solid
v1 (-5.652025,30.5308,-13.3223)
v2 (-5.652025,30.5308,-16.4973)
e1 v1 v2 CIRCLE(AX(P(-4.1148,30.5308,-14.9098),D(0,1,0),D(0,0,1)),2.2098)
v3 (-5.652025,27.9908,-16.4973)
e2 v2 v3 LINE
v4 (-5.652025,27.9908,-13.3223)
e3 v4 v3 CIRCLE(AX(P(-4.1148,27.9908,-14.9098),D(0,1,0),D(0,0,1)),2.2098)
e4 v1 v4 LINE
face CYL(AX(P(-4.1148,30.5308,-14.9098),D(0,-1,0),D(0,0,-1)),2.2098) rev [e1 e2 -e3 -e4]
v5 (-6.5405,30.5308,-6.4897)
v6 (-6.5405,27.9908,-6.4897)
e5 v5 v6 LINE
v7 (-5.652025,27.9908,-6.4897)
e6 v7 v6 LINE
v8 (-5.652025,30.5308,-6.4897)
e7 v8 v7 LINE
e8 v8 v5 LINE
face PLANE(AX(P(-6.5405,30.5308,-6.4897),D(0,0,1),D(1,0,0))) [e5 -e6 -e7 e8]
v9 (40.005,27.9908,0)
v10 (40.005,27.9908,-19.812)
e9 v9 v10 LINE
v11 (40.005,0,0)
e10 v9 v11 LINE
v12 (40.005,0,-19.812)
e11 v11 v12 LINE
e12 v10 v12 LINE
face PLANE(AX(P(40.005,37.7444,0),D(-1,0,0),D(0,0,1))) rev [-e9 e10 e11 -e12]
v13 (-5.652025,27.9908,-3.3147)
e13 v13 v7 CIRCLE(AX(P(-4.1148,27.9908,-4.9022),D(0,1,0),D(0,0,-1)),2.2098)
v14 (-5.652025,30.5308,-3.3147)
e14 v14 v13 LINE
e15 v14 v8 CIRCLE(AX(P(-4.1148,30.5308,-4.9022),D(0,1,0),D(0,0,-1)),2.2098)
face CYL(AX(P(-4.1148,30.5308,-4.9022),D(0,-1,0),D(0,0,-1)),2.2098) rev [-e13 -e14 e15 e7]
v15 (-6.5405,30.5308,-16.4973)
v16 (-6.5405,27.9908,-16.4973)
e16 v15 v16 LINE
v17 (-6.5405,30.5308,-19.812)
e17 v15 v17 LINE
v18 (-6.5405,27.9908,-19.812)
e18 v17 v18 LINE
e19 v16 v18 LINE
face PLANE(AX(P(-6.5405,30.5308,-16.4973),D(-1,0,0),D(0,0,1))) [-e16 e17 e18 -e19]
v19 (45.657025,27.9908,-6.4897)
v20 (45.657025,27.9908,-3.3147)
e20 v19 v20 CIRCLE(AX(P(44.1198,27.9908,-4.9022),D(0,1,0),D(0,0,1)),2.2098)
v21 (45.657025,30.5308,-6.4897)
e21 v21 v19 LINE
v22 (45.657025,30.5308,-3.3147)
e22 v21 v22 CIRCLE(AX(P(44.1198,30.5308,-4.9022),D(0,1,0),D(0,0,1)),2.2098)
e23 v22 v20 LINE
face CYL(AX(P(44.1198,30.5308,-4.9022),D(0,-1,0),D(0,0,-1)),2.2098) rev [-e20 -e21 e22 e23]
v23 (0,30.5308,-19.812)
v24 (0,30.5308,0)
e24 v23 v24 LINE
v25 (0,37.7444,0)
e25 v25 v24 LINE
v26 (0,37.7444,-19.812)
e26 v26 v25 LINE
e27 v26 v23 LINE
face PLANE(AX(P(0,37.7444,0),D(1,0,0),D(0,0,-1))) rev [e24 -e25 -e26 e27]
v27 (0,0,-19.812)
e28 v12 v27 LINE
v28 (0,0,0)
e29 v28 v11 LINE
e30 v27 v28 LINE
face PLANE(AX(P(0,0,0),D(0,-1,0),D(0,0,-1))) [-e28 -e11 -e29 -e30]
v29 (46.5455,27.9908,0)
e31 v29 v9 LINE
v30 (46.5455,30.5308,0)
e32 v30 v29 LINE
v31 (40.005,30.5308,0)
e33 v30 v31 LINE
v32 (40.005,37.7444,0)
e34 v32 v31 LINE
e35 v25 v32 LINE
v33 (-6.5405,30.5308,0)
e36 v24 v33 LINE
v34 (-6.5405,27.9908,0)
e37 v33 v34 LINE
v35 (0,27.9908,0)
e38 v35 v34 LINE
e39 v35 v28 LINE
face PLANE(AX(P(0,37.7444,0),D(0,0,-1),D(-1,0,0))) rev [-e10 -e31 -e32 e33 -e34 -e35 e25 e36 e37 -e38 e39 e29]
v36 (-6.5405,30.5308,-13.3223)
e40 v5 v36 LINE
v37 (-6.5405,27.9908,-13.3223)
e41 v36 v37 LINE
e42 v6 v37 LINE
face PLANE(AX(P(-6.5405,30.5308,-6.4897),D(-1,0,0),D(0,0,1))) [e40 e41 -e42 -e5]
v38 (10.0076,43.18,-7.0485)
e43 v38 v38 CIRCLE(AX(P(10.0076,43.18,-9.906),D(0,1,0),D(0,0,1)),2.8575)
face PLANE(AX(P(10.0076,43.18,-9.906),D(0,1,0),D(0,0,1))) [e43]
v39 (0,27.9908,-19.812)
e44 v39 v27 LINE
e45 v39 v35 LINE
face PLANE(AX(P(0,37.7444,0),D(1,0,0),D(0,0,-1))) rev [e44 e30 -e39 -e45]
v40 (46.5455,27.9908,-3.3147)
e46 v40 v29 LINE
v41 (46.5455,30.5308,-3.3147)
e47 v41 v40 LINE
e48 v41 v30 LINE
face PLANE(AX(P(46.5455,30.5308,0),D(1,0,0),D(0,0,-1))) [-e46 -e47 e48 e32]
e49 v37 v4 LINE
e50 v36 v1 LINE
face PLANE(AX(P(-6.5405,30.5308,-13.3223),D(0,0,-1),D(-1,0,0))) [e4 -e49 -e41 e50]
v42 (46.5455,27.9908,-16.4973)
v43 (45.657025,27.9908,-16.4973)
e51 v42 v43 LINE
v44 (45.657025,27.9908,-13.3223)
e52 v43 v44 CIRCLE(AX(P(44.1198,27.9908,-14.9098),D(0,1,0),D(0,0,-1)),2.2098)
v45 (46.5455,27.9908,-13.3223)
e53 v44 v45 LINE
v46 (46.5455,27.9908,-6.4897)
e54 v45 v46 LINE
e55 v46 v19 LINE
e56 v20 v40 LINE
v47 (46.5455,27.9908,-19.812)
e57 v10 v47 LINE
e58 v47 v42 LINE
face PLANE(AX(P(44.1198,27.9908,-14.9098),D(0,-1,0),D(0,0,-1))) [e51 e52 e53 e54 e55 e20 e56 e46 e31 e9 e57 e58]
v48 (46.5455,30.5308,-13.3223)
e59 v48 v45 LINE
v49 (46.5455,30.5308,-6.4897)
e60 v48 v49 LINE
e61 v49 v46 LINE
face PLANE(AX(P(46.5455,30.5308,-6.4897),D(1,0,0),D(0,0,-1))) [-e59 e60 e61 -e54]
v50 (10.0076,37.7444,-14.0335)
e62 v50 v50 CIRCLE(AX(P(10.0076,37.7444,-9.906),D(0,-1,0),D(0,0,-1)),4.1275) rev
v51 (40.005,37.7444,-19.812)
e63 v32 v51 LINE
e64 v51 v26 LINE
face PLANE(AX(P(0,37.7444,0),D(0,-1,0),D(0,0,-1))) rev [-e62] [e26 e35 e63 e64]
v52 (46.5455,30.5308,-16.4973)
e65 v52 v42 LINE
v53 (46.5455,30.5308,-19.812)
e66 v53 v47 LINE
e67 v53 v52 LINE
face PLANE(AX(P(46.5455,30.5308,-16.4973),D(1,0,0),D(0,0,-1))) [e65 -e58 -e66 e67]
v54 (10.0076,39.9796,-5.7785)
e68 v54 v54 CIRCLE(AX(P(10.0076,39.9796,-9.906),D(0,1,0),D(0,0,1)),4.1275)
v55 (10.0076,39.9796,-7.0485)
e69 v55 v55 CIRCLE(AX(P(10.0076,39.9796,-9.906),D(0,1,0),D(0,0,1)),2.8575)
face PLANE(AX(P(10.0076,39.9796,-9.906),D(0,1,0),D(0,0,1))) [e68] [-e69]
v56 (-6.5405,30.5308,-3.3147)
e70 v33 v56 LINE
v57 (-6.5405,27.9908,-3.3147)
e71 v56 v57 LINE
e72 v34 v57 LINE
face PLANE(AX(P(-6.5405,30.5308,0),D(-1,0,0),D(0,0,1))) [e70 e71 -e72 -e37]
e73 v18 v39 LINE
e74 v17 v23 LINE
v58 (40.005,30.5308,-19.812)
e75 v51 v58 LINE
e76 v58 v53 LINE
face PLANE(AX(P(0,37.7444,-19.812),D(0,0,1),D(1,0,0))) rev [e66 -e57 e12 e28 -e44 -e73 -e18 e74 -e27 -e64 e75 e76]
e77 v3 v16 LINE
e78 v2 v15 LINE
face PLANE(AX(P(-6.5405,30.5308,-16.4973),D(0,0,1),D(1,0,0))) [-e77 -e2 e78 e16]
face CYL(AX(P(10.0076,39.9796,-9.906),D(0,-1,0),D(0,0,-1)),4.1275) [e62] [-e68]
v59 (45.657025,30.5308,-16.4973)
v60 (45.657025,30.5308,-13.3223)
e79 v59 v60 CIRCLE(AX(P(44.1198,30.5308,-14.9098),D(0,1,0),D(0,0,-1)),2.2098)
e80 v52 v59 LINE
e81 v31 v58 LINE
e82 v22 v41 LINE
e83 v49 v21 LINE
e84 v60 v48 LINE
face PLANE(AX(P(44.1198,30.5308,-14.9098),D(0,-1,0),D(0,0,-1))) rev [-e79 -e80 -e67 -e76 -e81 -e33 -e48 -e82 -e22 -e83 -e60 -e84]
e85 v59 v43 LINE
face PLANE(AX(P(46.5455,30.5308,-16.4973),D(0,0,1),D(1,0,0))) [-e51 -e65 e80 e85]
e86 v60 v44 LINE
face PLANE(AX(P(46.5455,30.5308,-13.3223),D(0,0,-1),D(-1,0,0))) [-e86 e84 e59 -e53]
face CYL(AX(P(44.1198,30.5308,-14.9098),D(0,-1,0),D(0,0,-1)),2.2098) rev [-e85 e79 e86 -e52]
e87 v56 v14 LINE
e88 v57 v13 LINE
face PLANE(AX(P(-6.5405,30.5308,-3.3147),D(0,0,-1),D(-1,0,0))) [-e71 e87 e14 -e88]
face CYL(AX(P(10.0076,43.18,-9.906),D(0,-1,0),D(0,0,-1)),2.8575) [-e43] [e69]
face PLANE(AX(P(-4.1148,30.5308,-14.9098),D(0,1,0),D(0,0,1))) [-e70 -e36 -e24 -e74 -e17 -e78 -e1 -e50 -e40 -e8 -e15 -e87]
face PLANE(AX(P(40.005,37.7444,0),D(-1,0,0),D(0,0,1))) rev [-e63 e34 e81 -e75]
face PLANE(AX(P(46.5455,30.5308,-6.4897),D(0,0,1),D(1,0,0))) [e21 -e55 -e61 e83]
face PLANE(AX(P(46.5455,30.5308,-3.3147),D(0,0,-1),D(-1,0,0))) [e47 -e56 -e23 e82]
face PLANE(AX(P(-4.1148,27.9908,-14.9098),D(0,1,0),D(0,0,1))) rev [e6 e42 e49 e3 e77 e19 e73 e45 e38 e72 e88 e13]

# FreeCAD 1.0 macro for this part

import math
import FreeCAD as App
import Part
import Sketcher
from FreeCAD import Vector
Q = App.Units.Quantity


def add_polygon(sketch, points):
    """Adds a closed chain of lines whose ends are joined by coincident constraints."""
    first, n = sketch.GeometryCount, len(points)
    for a, b in zip(points, points[1:] + points[:1]):
        sketch.addGeometry(Part.LineSegment(App.Vector(*a, 0), App.Vector(*b, 0)), False)
    for i in range(n):
        sketch.addConstraint(Sketcher.Constraint("Coincident", first + i, 2, first + (i + 1) % n, 1))

doc = App.newDocument("Part")
body = doc.addObject("PartDesign::Body", "Body")

# Sketch on XZ plane
sketch1 = doc.addObject("Sketcher::SketchObject", "Sketch")
body.addObject(sketch1)
sketch1.AttachmentSupport = (doc.XZ_Plane, [""])
sketch1.MapMode = "FlatFace"
add_polygon(sketch1, [(0, -19.812), (0, 0), (40.005, 0), (40.005, -19.812)])  # lines 0-3
sketch1.addConstraint([
    Sketcher.Constraint("Vertical", 0),
    Sketcher.Constraint("Horizontal", 1),
    Sketcher.Constraint("Vertical", 2),
    Sketcher.Constraint("Horizontal", 3),
    Sketcher.Constraint("Coincident", 0, 2, -1, 1),
    Sketcher.Constraint("DistanceY", 0, 1, 0, 2, Q("0.78 in")),
    Sketcher.Constraint("DistanceX", 1, 1, 1, 2, Q("1.575 in")),
])
pad1 = doc.addObject("PartDesign::Pad", "Pad")
body.addObject(pad1)
pad1.Profile = sketch1
pad1.Length = Q("1.486 in")
pad1.Reversed = True

# Sketch on XZ plane
sketch2 = doc.addObject("Sketcher::SketchObject", "Sketch001")
body.addObject(sketch2)
sketch2.AttachmentSupport = (doc.XZ_Plane, [""])
sketch2.MapMode = "FlatFace"
sketch2.AttachmentOffset = App.Placement(Vector(0, 0, -1.486 * 25.4), App.Rotation())
sketch2.addGeometry(Part.Circle(Vector(10.0076, -9.906, 0), Vector(0, 0, 1), 4.1275), False)
sketch2.addConstraint([
    Sketcher.Constraint("Diameter", 0, Q("0.325 in")),
    Sketcher.Constraint("DistanceY", 0, 3, -1, 1, Q("0.39 in")),
    Sketcher.Constraint("DistanceX", -1, 1, 0, 3, Q("0.394 in")),
])
pad2 = doc.addObject("PartDesign::Pad", "Pad001")
body.addObject(pad2)
pad2.Profile = sketch2
pad2.Length = Q("0.088 in")
pad2.Reversed = True

# Sketch on XZ plane
sketch3 = doc.addObject("Sketcher::SketchObject", "Sketch002")
body.addObject(sketch3)
sketch3.AttachmentSupport = (doc.XZ_Plane, [""])
sketch3.MapMode = "FlatFace"
sketch3.AttachmentOffset = App.Placement(Vector(0, 0, -1.574 * 25.4), App.Rotation())
sketch3.addGeometry(Part.Circle(Vector(10.0076, -9.906, 0), Vector(0, 0, 1), 2.8575), False)
sketch3.addConstraint([
    Sketcher.Constraint("Diameter", 0, Q("0.225 in")),
    Sketcher.Constraint("DistanceY", 0, 3, -1, 1, Q("0.39 in")),
    Sketcher.Constraint("DistanceX", -1, 1, 0, 3, Q("0.394 in")),
])
pad3 = doc.addObject("PartDesign::Pad", "Pad002")
body.addObject(pad3)
pad3.Profile = sketch3
pad3.Length = Q("0.126 in")
pad3.Reversed = True

# Sketch on XZ plane
sketch4 = doc.addObject("Sketcher::SketchObject", "Sketch003")
body.addObject(sketch4)
sketch4.AttachmentSupport = (doc.XZ_Plane, [""])
sketch4.MapMode = "FlatFace"
sketch4.AttachmentOffset = App.Placement(Vector(0, 0, -1.102 * 25.4), App.Rotation())
sketch4.addGeometry([
    Part.LineSegment(Vector(0, 0, 0), Vector(-6.5405, 0, 0)),  # 0
    Part.LineSegment(Vector(-6.5405, 0, 0), Vector(-6.5405, -3.3147, 0)),  # 1
    Part.LineSegment(Vector(-6.5405, -3.3147, 0), Vector(-5.652025, -3.3147, 0)),  # 2
    Part.ArcOfCircle(Part.Circle(Vector(-4.1148, -4.9022, 0), Vector(0, 0, 1), 2.2098), math.radians(-134.078218), math.radians(134.078218)),  # 3
    Part.LineSegment(Vector(-5.652025, -6.4897, 0), Vector(-6.5405, -6.4897, 0)),  # 4
    Part.LineSegment(Vector(-6.5405, -6.4897, 0), Vector(-6.5405, -13.3223, 0)),  # 5
    Part.LineSegment(Vector(-6.5405, -13.3223, 0), Vector(-5.652025, -13.3223, 0)),  # 6
    Part.ArcOfCircle(Part.Circle(Vector(-4.1148, -14.9098, 0), Vector(0, 0, 1), 2.2098), math.radians(-134.078218), math.radians(134.078218)),  # 7
    Part.LineSegment(Vector(-5.652025, -16.4973, 0), Vector(-6.5405, -16.4973, 0)),  # 8
    Part.LineSegment(Vector(-6.5405, -16.4973, 0), Vector(-6.5405, -19.812, 0)),  # 9
    Part.LineSegment(Vector(-6.5405, -19.812, 0), Vector(0, -19.812, 0)),  # 10
    Part.LineSegment(Vector(0, -19.812, 0), Vector(0, 0, 0)),  # 11
    Part.LineSegment(Vector(46.5455, -19.812, 0), Vector(46.5455, -16.4973, 0)),  # 12
    Part.LineSegment(Vector(46.5455, -16.4973, 0), Vector(45.657025, -16.4973, 0)),  # 13
    Part.ArcOfCircle(Part.Circle(Vector(44.1198, -14.9098, 0), Vector(0, 0, 1), 2.2098), math.radians(45.921782), math.radians(314.078218)),  # 14
    Part.LineSegment(Vector(45.657025, -13.3223, 0), Vector(46.5455, -13.3223, 0)),  # 15
    Part.LineSegment(Vector(46.5455, -13.3223, 0), Vector(46.5455, -6.4897, 0)),  # 16
    Part.LineSegment(Vector(46.5455, -6.4897, 0), Vector(45.657025, -6.4897, 0)),  # 17
    Part.ArcOfCircle(Part.Circle(Vector(44.1198, -4.9022, 0), Vector(0, 0, 1), 2.2098), math.radians(45.921782), math.radians(314.078218)),  # 18
    Part.LineSegment(Vector(45.657025, -3.3147, 0), Vector(46.5455, -3.3147, 0)),  # 19
    Part.LineSegment(Vector(46.5455, -3.3147, 0), Vector(46.5455, 0, 0)),  # 20
    Part.LineSegment(Vector(46.5455, 0, 0), Vector(40.005, 0, 0)),  # 21
    Part.LineSegment(Vector(40.005, 0, 0), Vector(40.005, -19.812, 0)),  # 22
    Part.LineSegment(Vector(40.005, -19.812, 0), Vector(46.5455, -19.812, 0)),  # 23
], False)
sketch4.addConstraint([
    Sketcher.Constraint("Coincident", 0, 2, 1, 1),
    Sketcher.Constraint("Coincident", 1, 2, 2, 1),
    Sketcher.Constraint("Coincident", 2, 2, 3, 2),
    Sketcher.Constraint("Coincident", 3, 1, 4, 1),
    Sketcher.Constraint("Coincident", 4, 2, 5, 1),
    Sketcher.Constraint("Coincident", 5, 2, 6, 1),
    Sketcher.Constraint("Coincident", 6, 2, 7, 2),
    Sketcher.Constraint("Coincident", 7, 1, 8, 1),
    Sketcher.Constraint("Coincident", 8, 2, 9, 1),
    Sketcher.Constraint("Coincident", 9, 2, 10, 1),
    Sketcher.Constraint("Coincident", 10, 2, 11, 1),
    Sketcher.Constraint("Coincident", 11, 2, 0, 1),
    Sketcher.Constraint("Coincident", 12, 2, 13, 1),
    Sketcher.Constraint("Coincident", 13, 2, 14, 2),
    Sketcher.Constraint("Coincident", 14, 1, 15, 1),
    Sketcher.Constraint("Coincident", 15, 2, 16, 1),
    Sketcher.Constraint("Coincident", 16, 2, 17, 1),
    Sketcher.Constraint("Coincident", 17, 2, 18, 2),
    Sketcher.Constraint("Coincident", 18, 1, 19, 1),
    Sketcher.Constraint("Coincident", 19, 2, 20, 1),
    Sketcher.Constraint("Coincident", 20, 2, 21, 1),
    Sketcher.Constraint("Coincident", 21, 2, 22, 1),
    Sketcher.Constraint("Coincident", 22, 2, 23, 1),
    Sketcher.Constraint("Coincident", 23, 2, 12, 1),
    Sketcher.Constraint("Horizontal", 0),
    Sketcher.Constraint("Vertical", 1),
    Sketcher.Constraint("Horizontal", 2),
    Sketcher.Constraint("Horizontal", 4),
    Sketcher.Constraint("Vertical", 5),
    Sketcher.Constraint("Horizontal", 6),
    Sketcher.Constraint("Horizontal", 8),
    Sketcher.Constraint("Vertical", 9),
    Sketcher.Constraint("Horizontal", 10),
    Sketcher.Constraint("Vertical", 11),
    Sketcher.Constraint("Vertical", 12),
    Sketcher.Constraint("Horizontal", 13),
    Sketcher.Constraint("Horizontal", 15),
    Sketcher.Constraint("Vertical", 16),
    Sketcher.Constraint("Horizontal", 17),
    Sketcher.Constraint("Horizontal", 19),
    Sketcher.Constraint("Vertical", 20),
    Sketcher.Constraint("Horizontal", 21),
    Sketcher.Constraint("Vertical", 22),
    Sketcher.Constraint("Horizontal", 23),
    Sketcher.Constraint("Coincident", 11, 2, -1, 1),
    Sketcher.Constraint("Equal", 3, 7),
    Sketcher.Constraint("Equal", 7, 14),
    Sketcher.Constraint("Equal", 14, 18),
    Sketcher.Constraint("PointOnObject", 20, 2, -1),
    Sketcher.Constraint("Horizontal", 7, 3, 14, 3),
    Sketcher.Constraint("Horizontal", 3, 3, 18, 3),
    Sketcher.Constraint("Horizontal", 8, 2, 12, 2),
    Sketcher.Constraint("Horizontal", 6, 2, 14, 1),
    Sketcher.Constraint("Horizontal", 4, 2, 16, 2),
    Sketcher.Constraint("Horizontal", 2, 2, 18, 1),
    Sketcher.Constraint("Horizontal", 10, 2, 22, 2),
    Sketcher.Constraint("Vertical", 3, 3, 7, 3),
    Sketcher.Constraint("Vertical", 14, 3, 18, 3),
    Sketcher.Constraint("Vertical", 2, 2, 3, 1),
    Sketcher.Constraint("Vertical", 1, 2, 4, 2),
    Sketcher.Constraint("Vertical", 3, 1, 6, 2),
    Sketcher.Constraint("Vertical", 6, 2, 7, 1),
    Sketcher.Constraint("Vertical", 5, 2, 8, 2),
    Sketcher.Constraint("Vertical", 12, 2, 15, 2),
    Sketcher.Constraint("Vertical", 16, 2, 19, 2),
    Sketcher.Constraint("Equal", 8, 13),
    Sketcher.Constraint("Equal", 10, 21),
    Sketcher.Constraint("Equal", 1, 9),
    Sketcher.Constraint("Radius", 3, Q("0.087 in")),
    Sketcher.Constraint("DistanceY", 11, 1, 11, 2, Q("0.78 in")),
    Sketcher.Constraint("DistanceY", 5, 2, 5, 1, Q("0.269 in")),
    Sketcher.Constraint("DistanceX", 0, 2, 0, 1, Q("0.2575 in")),
    Sketcher.Constraint("DistanceY", 1, 2, 1, 1, Q("0.1305 in")),
    Sketcher.Constraint("DistanceX", 3, 3, -1, 1, Q("0.162 in")),
    Sketcher.Constraint("DistanceX", -1, 1, 14, 3, Q("1.737 in")),
])
pad4 = doc.addObject("PartDesign::Pad", "Pad003")
body.addObject(pad4)
pad4.Profile = sketch4
pad4.Length = Q("0.1 in")
pad4.Reversed = True

doc.recompute()
